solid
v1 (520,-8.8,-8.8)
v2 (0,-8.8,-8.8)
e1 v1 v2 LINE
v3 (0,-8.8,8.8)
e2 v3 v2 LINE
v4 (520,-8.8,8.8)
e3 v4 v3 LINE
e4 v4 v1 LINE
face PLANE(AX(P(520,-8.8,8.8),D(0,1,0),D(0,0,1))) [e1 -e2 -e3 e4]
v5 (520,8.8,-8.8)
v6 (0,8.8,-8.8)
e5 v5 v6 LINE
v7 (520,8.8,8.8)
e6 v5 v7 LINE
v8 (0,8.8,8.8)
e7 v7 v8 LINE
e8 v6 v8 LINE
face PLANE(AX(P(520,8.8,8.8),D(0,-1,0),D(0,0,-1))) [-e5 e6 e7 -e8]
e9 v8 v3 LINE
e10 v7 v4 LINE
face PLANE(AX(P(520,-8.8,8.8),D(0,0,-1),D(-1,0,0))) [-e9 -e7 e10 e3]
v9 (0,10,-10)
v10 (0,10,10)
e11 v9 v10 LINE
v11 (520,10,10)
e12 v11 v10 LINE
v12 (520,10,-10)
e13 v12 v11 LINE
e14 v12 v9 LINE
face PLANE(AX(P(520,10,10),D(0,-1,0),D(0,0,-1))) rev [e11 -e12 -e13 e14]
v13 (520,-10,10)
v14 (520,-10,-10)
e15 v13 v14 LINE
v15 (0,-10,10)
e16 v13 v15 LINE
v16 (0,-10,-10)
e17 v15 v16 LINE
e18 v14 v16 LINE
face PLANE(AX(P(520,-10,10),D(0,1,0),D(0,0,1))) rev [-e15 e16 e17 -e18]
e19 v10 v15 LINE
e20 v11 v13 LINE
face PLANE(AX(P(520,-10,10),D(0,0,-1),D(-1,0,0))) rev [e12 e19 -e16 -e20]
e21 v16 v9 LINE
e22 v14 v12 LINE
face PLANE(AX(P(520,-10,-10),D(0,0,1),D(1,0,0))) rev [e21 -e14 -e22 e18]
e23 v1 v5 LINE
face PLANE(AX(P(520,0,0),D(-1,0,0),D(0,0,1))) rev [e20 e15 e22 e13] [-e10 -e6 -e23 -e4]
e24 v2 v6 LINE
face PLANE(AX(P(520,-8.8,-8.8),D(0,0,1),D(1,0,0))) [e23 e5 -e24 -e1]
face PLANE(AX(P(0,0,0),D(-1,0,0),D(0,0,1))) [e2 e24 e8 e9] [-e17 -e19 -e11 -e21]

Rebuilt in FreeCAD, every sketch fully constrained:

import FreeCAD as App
import Part
import Sketcher

V = App.Vector

doc = App.newDocument("Part")
body = doc.addObject("PartDesign::Body", "Body")

# Sketch on YZ plane
sketch1 = body.newObject("Sketcher::SketchObject", "Sketch")
sketch1.AttachmentSupport = (doc.getObject("YZ_Plane"), [""])
sketch1.MapMode = "FlatFace"
sketch1.addGeometry([
    Part.LineSegment(V(10, 10, 0), V(-10, 10, 0)),  # 0
    Part.LineSegment(V(-10, 10, 0), V(-10, -10, 0)),  # 1
    Part.LineSegment(V(-10, -10, 0), V(10, -10, 0)),  # 2
    Part.LineSegment(V(10, -10, 0), V(10, 10, 0)),  # 3
    Part.LineSegment(V(-8.8, -8.8, 0), V(-8.8, 8.8, 0)),  # 4
    Part.LineSegment(V(-8.8, 8.8, 0), V(8.8, 8.8, 0)),  # 5
    Part.LineSegment(V(8.8, 8.8, 0), V(8.8, -8.8, 0)),  # 6
    Part.LineSegment(V(8.8, -8.8, 0), V(-8.8, -8.8, 0)),  # 7
], False)
sketch1.addConstraint([
    Sketcher.Constraint("Coincident", 0, 2, 1, 1),
    Sketcher.Constraint("Coincident", 1, 2, 2, 1),
    Sketcher.Constraint("Coincident", 2, 2, 3, 1),
    Sketcher.Constraint("Coincident", 3, 2, 0, 1),
    Sketcher.Constraint("Coincident", 4, 2, 5, 1),
    Sketcher.Constraint("Coincident", 5, 2, 6, 1),
    Sketcher.Constraint("Coincident", 6, 2, 7, 1),
    Sketcher.Constraint("Coincident", 7, 2, 4, 1),
    Sketcher.Constraint("Horizontal", 0),
    Sketcher.Constraint("Vertical", 1),
    Sketcher.Constraint("Horizontal", 2),
    Sketcher.Constraint("Vertical", 3),
    Sketcher.Constraint("Vertical", 4),
    Sketcher.Constraint("Horizontal", 5),
    Sketcher.Constraint("Vertical", 6),
    Sketcher.Constraint("Horizontal", 7),
    Sketcher.Constraint("Symmetric", 0, 2, 2, 2, -1, 1),
    Sketcher.Constraint("Symmetric", 4, 2, 6, 2, -1, 1),
    Sketcher.Constraint("Equal", 2, 1),
    Sketcher.Constraint("Equal", 7, 4),
    Sketcher.Constraint("DistanceX", 0, 2, 0, 1, 20.0),
    Sketcher.Constraint("DistanceX", 5, 1, 5, 2, 17.6),
])
pad1 = body.newObject("PartDesign::Pad", "Pad")
pad1.Profile = sketch1
pad1.Length = 520

doc.recompute()
